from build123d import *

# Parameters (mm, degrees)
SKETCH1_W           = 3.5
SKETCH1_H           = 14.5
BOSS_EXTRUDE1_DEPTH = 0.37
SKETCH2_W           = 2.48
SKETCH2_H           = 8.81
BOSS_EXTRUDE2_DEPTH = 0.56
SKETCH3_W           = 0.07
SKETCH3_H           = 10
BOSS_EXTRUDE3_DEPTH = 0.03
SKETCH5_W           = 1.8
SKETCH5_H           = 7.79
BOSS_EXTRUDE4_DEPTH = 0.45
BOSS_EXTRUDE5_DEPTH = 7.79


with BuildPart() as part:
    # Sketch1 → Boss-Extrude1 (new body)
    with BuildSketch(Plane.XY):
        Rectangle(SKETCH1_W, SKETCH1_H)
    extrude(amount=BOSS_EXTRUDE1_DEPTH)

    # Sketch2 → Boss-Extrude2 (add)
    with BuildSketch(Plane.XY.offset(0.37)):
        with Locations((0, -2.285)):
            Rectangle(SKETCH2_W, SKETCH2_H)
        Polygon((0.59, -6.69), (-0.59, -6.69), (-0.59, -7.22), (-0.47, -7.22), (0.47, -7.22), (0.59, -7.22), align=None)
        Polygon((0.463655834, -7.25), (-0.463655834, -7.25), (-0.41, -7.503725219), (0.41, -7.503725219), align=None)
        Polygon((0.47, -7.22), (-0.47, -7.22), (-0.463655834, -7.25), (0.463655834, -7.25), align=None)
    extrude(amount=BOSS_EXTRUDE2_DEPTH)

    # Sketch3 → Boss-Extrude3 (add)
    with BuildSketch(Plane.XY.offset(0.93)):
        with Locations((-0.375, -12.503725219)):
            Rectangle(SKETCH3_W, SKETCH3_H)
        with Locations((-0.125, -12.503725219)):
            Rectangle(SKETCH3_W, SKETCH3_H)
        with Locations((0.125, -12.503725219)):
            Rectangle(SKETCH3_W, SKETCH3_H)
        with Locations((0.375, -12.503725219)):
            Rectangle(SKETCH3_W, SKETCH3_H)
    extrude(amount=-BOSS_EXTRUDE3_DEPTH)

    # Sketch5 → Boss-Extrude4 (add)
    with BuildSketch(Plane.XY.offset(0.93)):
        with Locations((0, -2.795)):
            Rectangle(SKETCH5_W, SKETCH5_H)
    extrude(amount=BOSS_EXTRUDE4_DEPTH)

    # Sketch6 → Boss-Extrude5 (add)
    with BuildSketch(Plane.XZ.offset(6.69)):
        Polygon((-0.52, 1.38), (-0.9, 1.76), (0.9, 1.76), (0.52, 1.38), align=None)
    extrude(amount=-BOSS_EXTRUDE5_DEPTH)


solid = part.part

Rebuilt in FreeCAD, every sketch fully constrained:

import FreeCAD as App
import Part
import Sketcher

V = App.Vector


def add_polygon(sketch, points):
    """Adds a closed chain of lines whose ends are joined by coincident constraints."""
    first, n = sketch.GeometryCount, len(points)
    for a, b in zip(points, points[1:] + points[:1]):
        sketch.addGeometry(Part.LineSegment(App.Vector(*a, 0), App.Vector(*b, 0)), False)
    for i in range(n):
        sketch.addConstraint(Sketcher.Constraint("Coincident", first + i, 2, first + (i + 1) % n, 1))

doc = App.newDocument("Part")
body = doc.addObject("PartDesign::Body", "Body")

# Sketch on XY plane
sketch1 = body.newObject("Sketcher::SketchObject", "Sketch")
sketch1.AttachmentSupport = (doc.getObject("XY_Plane"), [""])
sketch1.MapMode = "FlatFace"
add_polygon(sketch1, [(-1.8, 7.2), (-1.8, -7.2), (1.8, -7.2), (1.8, 7.2)])  # lines 0-3
sketch1.addConstraint([
    Sketcher.Constraint("Vertical", 0),
    Sketcher.Constraint("Horizontal", 1),
    Sketcher.Constraint("Vertical", 2),
    Sketcher.Constraint("Horizontal", 3),
    Sketcher.Constraint("Symmetric", 0, 2, 2, 2, -1, 1),
    Sketcher.Constraint("DistanceX", 1, 1, 1, 2, 3.5),
    Sketcher.Constraint("DistanceY", 0, 2, 0, 1, 14.5),
])
pad1 = body.newObject("PartDesign::Pad", "Pad")
pad1.Profile = sketch1
pad1.Length = 0.37

# Sketch on XY plane
sketch2 = body.newObject("Sketcher::SketchObject", "Sketch001")
sketch2.AttachmentSupport = (doc.getObject("XY_Plane"), [""])
sketch2.MapMode = "FlatFace"
sketch2.AttachmentOffset = App.Placement(V(0, 0, 0.37), App.Rotation())
add_polygon(sketch2, [(-1.24, 2.12), (-1.24, -6.69), (-0.59, -6.69), (-0.59, -7.22), (-0.47, -7.22), (-0.464, -7.25), (-0.41, -7.504), (0.41, -7.504), (0.464, -7.25), (0.47, -7.22), (0.59, -7.22), (0.59, -6.69), (1.24, -6.69), (1.24, 2.12)])  # lines 0-13
sketch2.addConstraint([
    Sketcher.Constraint("Vertical", 0),
    Sketcher.Constraint("Horizontal", 1),
    Sketcher.Constraint("Vertical", 2),
    Sketcher.Constraint("Horizontal", 3),
    Sketcher.Constraint("Horizontal", 6),
    Sketcher.Constraint("Horizontal", 9),
    Sketcher.Constraint("Vertical", 10),
    Sketcher.Constraint("Horizontal", 11),
    Sketcher.Constraint("Vertical", 12),
    Sketcher.Constraint("Horizontal", 13),
    Sketcher.Constraint("Symmetric", 4, 2, 7, 2, -2),
    Sketcher.Constraint("Symmetric", 3, 2, 8, 2, -2),
    Sketcher.Constraint("Symmetric", 1, 2, 10, 2, -2),
    Sketcher.Constraint("Parallel", 4, 5),
    Sketcher.Constraint("Parallel", 7, 8),
    Sketcher.Constraint("Equal", 1, 11),
    Sketcher.Constraint("DistanceX", 2, 2, 6, 2, 1.0),
    Sketcher.Constraint("DistanceX", 1, 1, 1, 2, 0.65),
    Sketcher.Constraint("DistanceX", 3, 1, 3, 2, 0.12),
    Sketcher.Constraint("DistanceX", 6, 1, 6, 2, 0.82),
    Sketcher.Constraint("DistanceY", 0, 2, 0, 1, 8.81),
    Sketcher.Constraint("DistanceY", 2, 2, 2, 1, 0.53),
    Sketcher.Constraint("DistanceY", 0, 2, -1, 1, 6.69),
    Sketcher.Constraint("DistanceY", 4, 2, -1, 1, 7.25),
    Sketcher.Constraint("DistanceX", 4, 2, 7, 2, 0.927312),
])
pad2 = body.newObject("PartDesign::Pad", "Pad001")
pad2.Profile = sketch2
pad2.Length = 0.56

# Sketch on XY plane
sketch3 = body.newObject("Sketcher::SketchObject", "Sketch002")
sketch3.AttachmentSupport = (doc.getObject("XY_Plane"), [""])
sketch3.MapMode = "FlatFace"
sketch3.AttachmentOffset = App.Placement(V(0, 0, 0.93), App.Rotation())
add_polygon(sketch3, [(-0.41, -7.5), (-0.41, -17.5), (-0.34, -17.5), (-0.34, -7.5)])  # lines 0-3
add_polygon(sketch3, [(-0.16, -7.5), (-0.16, -17.5), (-0.09, -17.5), (-0.09, -7.5)])  # lines 4-7
add_polygon(sketch3, [(0.09, -7.5), (0.09, -17.5), (0.16, -17.5), (0.16, -7.5)])  # lines 8-11
add_polygon(sketch3, [(0.34, -7.5), (0.34, -17.5), (0.41, -17.5), (0.41, -7.5)])  # lines 12-15
sketch3.addConstraint([
    Sketcher.Constraint("Vertical", 0),
    Sketcher.Constraint("Horizontal", 1),
    Sketcher.Constraint("Vertical", 2),
    Sketcher.Constraint("Horizontal", 3),
    Sketcher.Constraint("Vertical", 4),
    Sketcher.Constraint("Horizontal", 5),
    Sketcher.Constraint("Vertical", 6),
    Sketcher.Constraint("Horizontal", 7),
    Sketcher.Constraint("Vertical", 8),
    Sketcher.Constraint("Horizontal", 9),
    Sketcher.Constraint("Vertical", 10),
    Sketcher.Constraint("Horizontal", 11),
    Sketcher.Constraint("Vertical", 12),
    Sketcher.Constraint("Horizontal", 13),
    Sketcher.Constraint("Vertical", 14),
    Sketcher.Constraint("Horizontal", 15),
    Sketcher.Constraint("Symmetric", 5, 2, 8, 2, -2),
    Sketcher.Constraint("Symmetric", 7, 2, 10, 2, -2),
    Sketcher.Constraint("Symmetric", 1, 2, 12, 2, -2),
    Sketcher.Constraint("Symmetric", 3, 2, 14, 2, -2),
    Sketcher.Constraint("Horizontal", 1, 2, 4, 2),
    Sketcher.Constraint("Horizontal", 3, 2, 6, 2),
    Sketcher.Constraint("Equal", 3, 5),
    Sketcher.Constraint("DistanceY", 0, 2, 0, 1, 10.0),
    Sketcher.Constraint("DistanceX", 1, 1, 1, 2, 0.07),
    Sketcher.Constraint("DistanceX", 0, 2, 8, 2, 0.5),
    Sketcher.Constraint("DistanceX", 0, 2, -1, 1, 0.41),
    Sketcher.Constraint("DistanceY", 0, 2, -1, 1, 17.503725),
])
pad3 = body.newObject("PartDesign::Pad", "Pad002")
pad3.Profile = sketch3
pad3.Length = 0.03
pad3.Reversed = True

# Sketch on XY plane
sketch4 = body.newObject("Sketcher::SketchObject", "Sketch003")
sketch4.AttachmentSupport = (doc.getObject("XY_Plane"), [""])
sketch4.MapMode = "FlatFace"
sketch4.AttachmentOffset = App.Placement(V(0, 0, 0.93), App.Rotation())
add_polygon(sketch4, [(-0.9, 1.1), (-0.9, -6.7), (0.9, -6.7), (0.9, 1.1)])  # lines 0-3
sketch4.addConstraint([
    Sketcher.Constraint("Vertical", 0),
    Sketcher.Constraint("Horizontal", 1),
    Sketcher.Constraint("Vertical", 2),
    Sketcher.Constraint("Horizontal", 3),
    Sketcher.Constraint("DistanceX", 1, 1, 1, 2, 1.8),
    Sketcher.Constraint("DistanceY", 0, 2, 0, 1, 7.79),
    Sketcher.Constraint("DistanceX", 0, 2, -1, 1, 0.9),
    Sketcher.Constraint("DistanceY", -1, 1, 2, 2, 1.1),
])
pad4 = body.newObject("PartDesign::Pad", "Pad003")
pad4.Profile = sketch4
pad4.Length = 0.45

# Sketch on XZ plane
sketch5 = body.newObject("Sketcher::SketchObject", "Sketch004")
sketch5.AttachmentSupport = (doc.getObject("XZ_Plane"), [""])
sketch5.MapMode = "FlatFace"
sketch5.AttachmentOffset = App.Placement(V(0, 0, 6.69), App.Rotation())
add_polygon(sketch5, [(-0.9, 1.8), (-0.5, 1.4), (0.5, 1.4), (0.9, 1.8)])  # lines 0-3
sketch5.addConstraint([
    Sketcher.Constraint("Horizontal", 1),
    Sketcher.Constraint("Horizontal", 3),
    Sketcher.Constraint("Perpendicular", 0, 2),
    Sketcher.Constraint("Equal", 0, 2),
    Sketcher.Constraint("DistanceX", 3, 2, 3, 1, 1.8),
    Sketcher.Constraint("DistanceX", 1, 1, 1, 2, 1.04),
    Sketcher.Constraint("DistanceX", -1, 1, 2, 2, 0.9),
    Sketcher.Constraint("DistanceY", -1, 1, 0, 2, 1.38),
])
pad5 = body.newObject("PartDesign::Pad", "Pad004")
pad5.Profile = sketch5
pad5.Length = 7.79
pad5.Reversed = True

doc.recompute()
